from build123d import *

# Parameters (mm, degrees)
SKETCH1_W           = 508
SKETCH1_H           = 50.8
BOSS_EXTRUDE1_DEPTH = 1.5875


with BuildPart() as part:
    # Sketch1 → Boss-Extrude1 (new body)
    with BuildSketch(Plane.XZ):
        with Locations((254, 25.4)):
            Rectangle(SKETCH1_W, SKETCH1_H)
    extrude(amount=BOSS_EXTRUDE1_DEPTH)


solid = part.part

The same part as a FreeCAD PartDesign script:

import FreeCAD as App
import Part
import Sketcher

V = App.Vector
Q = App.Units.Quantity


def add_polygon(sketch, points):
    """Adds a closed chain of lines whose ends are joined by coincident constraints."""
    first, n = sketch.GeometryCount, len(points)
    for a, b in zip(points, points[1:] + points[:1]):
        sketch.addGeometry(Part.LineSegment(App.Vector(*a, 0), App.Vector(*b, 0)), False)
    for i in range(n):
        sketch.addConstraint(Sketcher.Constraint("Coincident", first + i, 2, first + (i + 1) % n, 1))

doc = App.newDocument("Part")
body = doc.addObject("PartDesign::Body", "Body")

sketch1 = body.newObject("Sketcher::SketchObject", "Sketch")
sketch1.AttachmentSupport = (doc.getObject("XZ_Plane"), [""])
sketch1.MapMode = "FlatFace"
add_polygon(sketch1, [(0, 50.8), (0, 0), (508, 0), (508, 50.8)])
sketch1.addConstraint([
    Sketcher.Constraint("Vertical", 0),
    Sketcher.Constraint("Horizontal", 1),
    Sketcher.Constraint("Vertical", 2),
    Sketcher.Constraint("Horizontal", 3),
    Sketcher.Constraint("Coincident", 0, 2, -1, 1),
    Sketcher.Constraint("DistanceX", 1, 1, 1, 2, Q("20 in")),
    Sketcher.Constraint("DistanceY", 0, 2, 0, 1, Q("2 in")),
])
pad1 = body.newObject("PartDesign::Pad", "Pad")
pad1.Profile = sketch1
pad1.Length = Q("0.0625 in")

doc.recompute()
